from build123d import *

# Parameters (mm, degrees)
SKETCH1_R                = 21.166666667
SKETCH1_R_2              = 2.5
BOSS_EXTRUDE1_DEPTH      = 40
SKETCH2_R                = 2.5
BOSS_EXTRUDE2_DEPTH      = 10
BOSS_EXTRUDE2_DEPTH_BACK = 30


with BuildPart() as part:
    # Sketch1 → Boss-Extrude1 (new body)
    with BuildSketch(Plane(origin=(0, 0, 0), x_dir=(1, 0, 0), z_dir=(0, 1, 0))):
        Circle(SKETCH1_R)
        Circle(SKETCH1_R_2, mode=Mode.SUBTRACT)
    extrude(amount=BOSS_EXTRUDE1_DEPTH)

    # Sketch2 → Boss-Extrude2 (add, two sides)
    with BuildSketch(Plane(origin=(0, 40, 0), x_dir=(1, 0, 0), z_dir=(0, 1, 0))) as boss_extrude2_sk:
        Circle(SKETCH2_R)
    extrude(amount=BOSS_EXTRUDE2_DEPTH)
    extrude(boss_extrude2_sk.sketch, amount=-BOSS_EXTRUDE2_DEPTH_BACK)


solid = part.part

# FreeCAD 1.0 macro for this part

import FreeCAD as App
import Part
import Sketcher

V = App.Vector

doc = App.newDocument("Part")
params = doc.addObject("Spreadsheet::Sheet", "Params")
for row, (alias, value) in enumerate([
    ("sketch1_diameter", "5 mm"),
    ("pad1_length", "40 mm"),
    ("sketch2_diameter", "5 mm"),
    ("pad2_length", "10 mm"),
    ("pad2_length2", "30 mm"),
], start=1):
    params.set(f"A{row}", alias)
    params.set(f"B{row}", "=" + value)
    params.setAlias(f"B{row}", alias)

body = doc.addObject("PartDesign::Body", "Body")

# Sketch on XZ plane
sketch1 = body.newObject("Sketcher::SketchObject", "Sketch")
sketch1.AttachmentSupport = (doc.getObject("XZ_Plane"), [""])
sketch1.MapMode = "FlatFace"
sketch1.addGeometry(Part.Circle(V(0, 0, 0), V(0, 0, 1), 21.2), False)
sketch1.addGeometry(Part.Circle(V(0, 0, 0), V(0, 0, 1), 2.5), False)
sketch1.addConstraint(Sketcher.Constraint("Coincident", 0, 3, -1, 1))
sketch1.addConstraint(Sketcher.Constraint("Coincident", 1, 3, -1, 1))
sketch1.addConstraint(Sketcher.Constraint("Diameter", 1, 5.0))
sketch1.addConstraint(Sketcher.Constraint("Diameter", 0, 42.333333))
sketch1.setExpression("Constraints[2]", "Params.sketch1_diameter")
pad1 = body.newObject("PartDesign::Pad", "Pad")
pad1.Profile = sketch1
pad1.setExpression("Length", "Params.pad1_length")
pad1.Reversed = True

# Sketch on XZ plane
sketch2 = body.newObject("Sketcher::SketchObject", "Sketch001")
sketch2.AttachmentSupport = (doc.getObject("XZ_Plane"), [""])
sketch2.MapMode = "FlatFace"
sketch2.AttachmentOffset = App.Placement(V(0, 0, -40), App.Rotation())
sketch2.addGeometry(Part.Circle(V(0, 0, 0), V(0, 0, 1), 2.5), False)
sketch2.addConstraint(Sketcher.Constraint("Coincident", 0, 3, -1, 1))
sketch2.addConstraint(Sketcher.Constraint("Diameter", 0, 5.0))
sketch2.setExpression("Constraints[1]", "Params.sketch2_diameter")
pad2 = body.newObject("PartDesign::Pad", "Pad001")
pad2.Profile = sketch2
pad2.Type = "TwoLengths"
pad2.setExpression("Length", "Params.pad2_length")
pad2.setExpression("Length2", "Params.pad2_length2")
pad2.Reversed = True

doc.recompute()
